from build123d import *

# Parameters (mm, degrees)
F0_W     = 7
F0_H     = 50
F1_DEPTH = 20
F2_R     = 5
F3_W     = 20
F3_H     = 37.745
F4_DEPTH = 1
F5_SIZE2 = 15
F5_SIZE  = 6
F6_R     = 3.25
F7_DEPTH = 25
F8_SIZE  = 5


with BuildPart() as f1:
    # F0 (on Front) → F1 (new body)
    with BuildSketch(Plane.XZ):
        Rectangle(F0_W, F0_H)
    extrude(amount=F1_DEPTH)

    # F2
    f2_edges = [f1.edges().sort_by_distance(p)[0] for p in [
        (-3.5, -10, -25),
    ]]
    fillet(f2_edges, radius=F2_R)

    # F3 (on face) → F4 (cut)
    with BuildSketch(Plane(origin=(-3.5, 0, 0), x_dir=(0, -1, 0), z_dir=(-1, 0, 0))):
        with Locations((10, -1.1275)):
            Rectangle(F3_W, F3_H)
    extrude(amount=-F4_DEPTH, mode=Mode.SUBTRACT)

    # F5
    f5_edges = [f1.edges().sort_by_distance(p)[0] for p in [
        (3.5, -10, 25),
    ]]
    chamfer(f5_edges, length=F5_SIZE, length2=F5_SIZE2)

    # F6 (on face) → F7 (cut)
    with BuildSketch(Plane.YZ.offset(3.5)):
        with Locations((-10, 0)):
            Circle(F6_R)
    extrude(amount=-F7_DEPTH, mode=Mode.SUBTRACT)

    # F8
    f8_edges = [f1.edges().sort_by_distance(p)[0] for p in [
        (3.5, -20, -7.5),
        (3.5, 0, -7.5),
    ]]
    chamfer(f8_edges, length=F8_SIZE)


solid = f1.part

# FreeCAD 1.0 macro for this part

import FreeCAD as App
import Part
import Sketcher


def edges_at(feature, points):
    """Names of the edges that pass closest to the given points."""
    edges = feature.Shape.Edges
    near = lambda p: min(range(len(edges)), key=lambda i: edges[i].distToShape(Part.Vertex(*p))[0])
    return sorted({f"Edge{near(p) + 1}" for p in points})


def add_polygon(sketch, points):
    """Adds a closed chain of lines whose ends are joined by coincident constraints."""
    first, n = sketch.GeometryCount, len(points)
    for a, b in zip(points, points[1:] + points[:1]):
        sketch.addGeometry(Part.LineSegment(App.Vector(*a, 0), App.Vector(*b, 0)), False)
    for i in range(n):
        sketch.addConstraint(Sketcher.Constraint("Coincident", first + i, 2, first + (i + 1) % n, 1))

doc = App.newDocument("Part")
body = doc.addObject("PartDesign::Body", "Body")

# Sketch on XZ plane
sketch1 = body.newObject("Sketcher::SketchObject", "Sketch")
sketch1.AttachmentSupport = (doc.getObject("XZ_Plane"), [""])
sketch1.MapMode = "FlatFace"
add_polygon(sketch1, [(-4, 25), (-4, -25), (4, -25), (4, 25)])  # lines 0-3
sketch1.addConstraint(Sketcher.Constraint("Vertical", 0))
sketch1.addConstraint(Sketcher.Constraint("Horizontal", 1))
sketch1.addConstraint(Sketcher.Constraint("Vertical", 2))
sketch1.addConstraint(Sketcher.Constraint("Horizontal", 3))
sketch1.addConstraint(Sketcher.Constraint("Symmetric", 0, 2, 2, 2, -1, 1))
sketch1.addConstraint(Sketcher.Constraint("DistanceX", 1, 1, 1, 2, 7.0))
sketch1.addConstraint(Sketcher.Constraint("DistanceY", 0, 2, 0, 1, 50.0))
pad1 = body.newObject("PartDesign::Pad", "Pad")
pad1.Profile = sketch1
pad1.Length = 20
doc.recompute()

fillet = body.newObject("PartDesign::Fillet", "Fillet")
fillet.Base = (pad1, edges_at(pad1, [(-3.5, -10, -25)]))
fillet.Radius = 5

# Sketch on YZ plane
sketch2 = body.newObject("Sketcher::SketchObject", "Sketch001")
sketch2.AttachmentSupport = (doc.getObject("YZ_Plane"), [""])
sketch2.MapMode = "FlatFace"
sketch2.AttachmentOffset = App.Placement(App.Vector(0, 0, -3.5), App.Rotation())
add_polygon(sketch2, [(0, 18), (0, -20), (-20, -20), (-20, 18)])  # lines 0-3
sketch2.addConstraint(Sketcher.Constraint("Vertical", 0))
sketch2.addConstraint(Sketcher.Constraint("Horizontal", 1))
sketch2.addConstraint(Sketcher.Constraint("Vertical", 2))
sketch2.addConstraint(Sketcher.Constraint("Horizontal", 3))
sketch2.addConstraint(Sketcher.Constraint("PointOnObject", 0, 2, -2))
sketch2.addConstraint(Sketcher.Constraint("DistanceX", 1, 2, 1, 1, 20.0))
sketch2.addConstraint(Sketcher.Constraint("DistanceY", 0, 2, -1, 1, 20.0))
sketch2.addConstraint(Sketcher.Constraint("DistanceY", 0, 2, 0, 1, 37.745))
pocket1 = body.newObject("PartDesign::Pocket", "Pocket")
pocket1.Profile = sketch2
pocket1.Length = 1
pocket1.Reversed = True
doc.recompute()

chamfer = body.newObject("PartDesign::Chamfer", "Chamfer")
chamfer.Base = (pocket1, edges_at(pocket1, [(3.5, -10, 25)]))
chamfer.ChamferType = "Two distances"
chamfer.Size = 6
chamfer.Size2 = 15

# Sketch on YZ plane
sketch3 = body.newObject("Sketcher::SketchObject", "Sketch002")
sketch3.AttachmentSupport = (doc.getObject("YZ_Plane"), [""])
sketch3.MapMode = "FlatFace"
sketch3.AttachmentOffset = App.Placement(App.Vector(0, 0, 3.5), App.Rotation())
sketch3.addGeometry(Part.Circle(App.Vector(-10, 0, 0), App.Vector(0, 0, 1), 3.2), False)
sketch3.addConstraint(Sketcher.Constraint("PointOnObject", 0, 3, -1))
sketch3.addConstraint(Sketcher.Constraint("Diameter", 0, 6.5))
sketch3.addConstraint(Sketcher.Constraint("DistanceX", 0, 3, -1, 1, 10.0))
pocket2 = body.newObject("PartDesign::Pocket", "Pocket001")
pocket2.Profile = sketch3
pocket2.Length = 25
doc.recompute()

chamfer2 = body.newObject("PartDesign::Chamfer", "Chamfer001")
chamfer2.Base = (pocket2, edges_at(pocket2, [(3.5, -20, -7.5), (3.5, 0, -7.5)]))
chamfer2.Size = 5

doc.recompute()
